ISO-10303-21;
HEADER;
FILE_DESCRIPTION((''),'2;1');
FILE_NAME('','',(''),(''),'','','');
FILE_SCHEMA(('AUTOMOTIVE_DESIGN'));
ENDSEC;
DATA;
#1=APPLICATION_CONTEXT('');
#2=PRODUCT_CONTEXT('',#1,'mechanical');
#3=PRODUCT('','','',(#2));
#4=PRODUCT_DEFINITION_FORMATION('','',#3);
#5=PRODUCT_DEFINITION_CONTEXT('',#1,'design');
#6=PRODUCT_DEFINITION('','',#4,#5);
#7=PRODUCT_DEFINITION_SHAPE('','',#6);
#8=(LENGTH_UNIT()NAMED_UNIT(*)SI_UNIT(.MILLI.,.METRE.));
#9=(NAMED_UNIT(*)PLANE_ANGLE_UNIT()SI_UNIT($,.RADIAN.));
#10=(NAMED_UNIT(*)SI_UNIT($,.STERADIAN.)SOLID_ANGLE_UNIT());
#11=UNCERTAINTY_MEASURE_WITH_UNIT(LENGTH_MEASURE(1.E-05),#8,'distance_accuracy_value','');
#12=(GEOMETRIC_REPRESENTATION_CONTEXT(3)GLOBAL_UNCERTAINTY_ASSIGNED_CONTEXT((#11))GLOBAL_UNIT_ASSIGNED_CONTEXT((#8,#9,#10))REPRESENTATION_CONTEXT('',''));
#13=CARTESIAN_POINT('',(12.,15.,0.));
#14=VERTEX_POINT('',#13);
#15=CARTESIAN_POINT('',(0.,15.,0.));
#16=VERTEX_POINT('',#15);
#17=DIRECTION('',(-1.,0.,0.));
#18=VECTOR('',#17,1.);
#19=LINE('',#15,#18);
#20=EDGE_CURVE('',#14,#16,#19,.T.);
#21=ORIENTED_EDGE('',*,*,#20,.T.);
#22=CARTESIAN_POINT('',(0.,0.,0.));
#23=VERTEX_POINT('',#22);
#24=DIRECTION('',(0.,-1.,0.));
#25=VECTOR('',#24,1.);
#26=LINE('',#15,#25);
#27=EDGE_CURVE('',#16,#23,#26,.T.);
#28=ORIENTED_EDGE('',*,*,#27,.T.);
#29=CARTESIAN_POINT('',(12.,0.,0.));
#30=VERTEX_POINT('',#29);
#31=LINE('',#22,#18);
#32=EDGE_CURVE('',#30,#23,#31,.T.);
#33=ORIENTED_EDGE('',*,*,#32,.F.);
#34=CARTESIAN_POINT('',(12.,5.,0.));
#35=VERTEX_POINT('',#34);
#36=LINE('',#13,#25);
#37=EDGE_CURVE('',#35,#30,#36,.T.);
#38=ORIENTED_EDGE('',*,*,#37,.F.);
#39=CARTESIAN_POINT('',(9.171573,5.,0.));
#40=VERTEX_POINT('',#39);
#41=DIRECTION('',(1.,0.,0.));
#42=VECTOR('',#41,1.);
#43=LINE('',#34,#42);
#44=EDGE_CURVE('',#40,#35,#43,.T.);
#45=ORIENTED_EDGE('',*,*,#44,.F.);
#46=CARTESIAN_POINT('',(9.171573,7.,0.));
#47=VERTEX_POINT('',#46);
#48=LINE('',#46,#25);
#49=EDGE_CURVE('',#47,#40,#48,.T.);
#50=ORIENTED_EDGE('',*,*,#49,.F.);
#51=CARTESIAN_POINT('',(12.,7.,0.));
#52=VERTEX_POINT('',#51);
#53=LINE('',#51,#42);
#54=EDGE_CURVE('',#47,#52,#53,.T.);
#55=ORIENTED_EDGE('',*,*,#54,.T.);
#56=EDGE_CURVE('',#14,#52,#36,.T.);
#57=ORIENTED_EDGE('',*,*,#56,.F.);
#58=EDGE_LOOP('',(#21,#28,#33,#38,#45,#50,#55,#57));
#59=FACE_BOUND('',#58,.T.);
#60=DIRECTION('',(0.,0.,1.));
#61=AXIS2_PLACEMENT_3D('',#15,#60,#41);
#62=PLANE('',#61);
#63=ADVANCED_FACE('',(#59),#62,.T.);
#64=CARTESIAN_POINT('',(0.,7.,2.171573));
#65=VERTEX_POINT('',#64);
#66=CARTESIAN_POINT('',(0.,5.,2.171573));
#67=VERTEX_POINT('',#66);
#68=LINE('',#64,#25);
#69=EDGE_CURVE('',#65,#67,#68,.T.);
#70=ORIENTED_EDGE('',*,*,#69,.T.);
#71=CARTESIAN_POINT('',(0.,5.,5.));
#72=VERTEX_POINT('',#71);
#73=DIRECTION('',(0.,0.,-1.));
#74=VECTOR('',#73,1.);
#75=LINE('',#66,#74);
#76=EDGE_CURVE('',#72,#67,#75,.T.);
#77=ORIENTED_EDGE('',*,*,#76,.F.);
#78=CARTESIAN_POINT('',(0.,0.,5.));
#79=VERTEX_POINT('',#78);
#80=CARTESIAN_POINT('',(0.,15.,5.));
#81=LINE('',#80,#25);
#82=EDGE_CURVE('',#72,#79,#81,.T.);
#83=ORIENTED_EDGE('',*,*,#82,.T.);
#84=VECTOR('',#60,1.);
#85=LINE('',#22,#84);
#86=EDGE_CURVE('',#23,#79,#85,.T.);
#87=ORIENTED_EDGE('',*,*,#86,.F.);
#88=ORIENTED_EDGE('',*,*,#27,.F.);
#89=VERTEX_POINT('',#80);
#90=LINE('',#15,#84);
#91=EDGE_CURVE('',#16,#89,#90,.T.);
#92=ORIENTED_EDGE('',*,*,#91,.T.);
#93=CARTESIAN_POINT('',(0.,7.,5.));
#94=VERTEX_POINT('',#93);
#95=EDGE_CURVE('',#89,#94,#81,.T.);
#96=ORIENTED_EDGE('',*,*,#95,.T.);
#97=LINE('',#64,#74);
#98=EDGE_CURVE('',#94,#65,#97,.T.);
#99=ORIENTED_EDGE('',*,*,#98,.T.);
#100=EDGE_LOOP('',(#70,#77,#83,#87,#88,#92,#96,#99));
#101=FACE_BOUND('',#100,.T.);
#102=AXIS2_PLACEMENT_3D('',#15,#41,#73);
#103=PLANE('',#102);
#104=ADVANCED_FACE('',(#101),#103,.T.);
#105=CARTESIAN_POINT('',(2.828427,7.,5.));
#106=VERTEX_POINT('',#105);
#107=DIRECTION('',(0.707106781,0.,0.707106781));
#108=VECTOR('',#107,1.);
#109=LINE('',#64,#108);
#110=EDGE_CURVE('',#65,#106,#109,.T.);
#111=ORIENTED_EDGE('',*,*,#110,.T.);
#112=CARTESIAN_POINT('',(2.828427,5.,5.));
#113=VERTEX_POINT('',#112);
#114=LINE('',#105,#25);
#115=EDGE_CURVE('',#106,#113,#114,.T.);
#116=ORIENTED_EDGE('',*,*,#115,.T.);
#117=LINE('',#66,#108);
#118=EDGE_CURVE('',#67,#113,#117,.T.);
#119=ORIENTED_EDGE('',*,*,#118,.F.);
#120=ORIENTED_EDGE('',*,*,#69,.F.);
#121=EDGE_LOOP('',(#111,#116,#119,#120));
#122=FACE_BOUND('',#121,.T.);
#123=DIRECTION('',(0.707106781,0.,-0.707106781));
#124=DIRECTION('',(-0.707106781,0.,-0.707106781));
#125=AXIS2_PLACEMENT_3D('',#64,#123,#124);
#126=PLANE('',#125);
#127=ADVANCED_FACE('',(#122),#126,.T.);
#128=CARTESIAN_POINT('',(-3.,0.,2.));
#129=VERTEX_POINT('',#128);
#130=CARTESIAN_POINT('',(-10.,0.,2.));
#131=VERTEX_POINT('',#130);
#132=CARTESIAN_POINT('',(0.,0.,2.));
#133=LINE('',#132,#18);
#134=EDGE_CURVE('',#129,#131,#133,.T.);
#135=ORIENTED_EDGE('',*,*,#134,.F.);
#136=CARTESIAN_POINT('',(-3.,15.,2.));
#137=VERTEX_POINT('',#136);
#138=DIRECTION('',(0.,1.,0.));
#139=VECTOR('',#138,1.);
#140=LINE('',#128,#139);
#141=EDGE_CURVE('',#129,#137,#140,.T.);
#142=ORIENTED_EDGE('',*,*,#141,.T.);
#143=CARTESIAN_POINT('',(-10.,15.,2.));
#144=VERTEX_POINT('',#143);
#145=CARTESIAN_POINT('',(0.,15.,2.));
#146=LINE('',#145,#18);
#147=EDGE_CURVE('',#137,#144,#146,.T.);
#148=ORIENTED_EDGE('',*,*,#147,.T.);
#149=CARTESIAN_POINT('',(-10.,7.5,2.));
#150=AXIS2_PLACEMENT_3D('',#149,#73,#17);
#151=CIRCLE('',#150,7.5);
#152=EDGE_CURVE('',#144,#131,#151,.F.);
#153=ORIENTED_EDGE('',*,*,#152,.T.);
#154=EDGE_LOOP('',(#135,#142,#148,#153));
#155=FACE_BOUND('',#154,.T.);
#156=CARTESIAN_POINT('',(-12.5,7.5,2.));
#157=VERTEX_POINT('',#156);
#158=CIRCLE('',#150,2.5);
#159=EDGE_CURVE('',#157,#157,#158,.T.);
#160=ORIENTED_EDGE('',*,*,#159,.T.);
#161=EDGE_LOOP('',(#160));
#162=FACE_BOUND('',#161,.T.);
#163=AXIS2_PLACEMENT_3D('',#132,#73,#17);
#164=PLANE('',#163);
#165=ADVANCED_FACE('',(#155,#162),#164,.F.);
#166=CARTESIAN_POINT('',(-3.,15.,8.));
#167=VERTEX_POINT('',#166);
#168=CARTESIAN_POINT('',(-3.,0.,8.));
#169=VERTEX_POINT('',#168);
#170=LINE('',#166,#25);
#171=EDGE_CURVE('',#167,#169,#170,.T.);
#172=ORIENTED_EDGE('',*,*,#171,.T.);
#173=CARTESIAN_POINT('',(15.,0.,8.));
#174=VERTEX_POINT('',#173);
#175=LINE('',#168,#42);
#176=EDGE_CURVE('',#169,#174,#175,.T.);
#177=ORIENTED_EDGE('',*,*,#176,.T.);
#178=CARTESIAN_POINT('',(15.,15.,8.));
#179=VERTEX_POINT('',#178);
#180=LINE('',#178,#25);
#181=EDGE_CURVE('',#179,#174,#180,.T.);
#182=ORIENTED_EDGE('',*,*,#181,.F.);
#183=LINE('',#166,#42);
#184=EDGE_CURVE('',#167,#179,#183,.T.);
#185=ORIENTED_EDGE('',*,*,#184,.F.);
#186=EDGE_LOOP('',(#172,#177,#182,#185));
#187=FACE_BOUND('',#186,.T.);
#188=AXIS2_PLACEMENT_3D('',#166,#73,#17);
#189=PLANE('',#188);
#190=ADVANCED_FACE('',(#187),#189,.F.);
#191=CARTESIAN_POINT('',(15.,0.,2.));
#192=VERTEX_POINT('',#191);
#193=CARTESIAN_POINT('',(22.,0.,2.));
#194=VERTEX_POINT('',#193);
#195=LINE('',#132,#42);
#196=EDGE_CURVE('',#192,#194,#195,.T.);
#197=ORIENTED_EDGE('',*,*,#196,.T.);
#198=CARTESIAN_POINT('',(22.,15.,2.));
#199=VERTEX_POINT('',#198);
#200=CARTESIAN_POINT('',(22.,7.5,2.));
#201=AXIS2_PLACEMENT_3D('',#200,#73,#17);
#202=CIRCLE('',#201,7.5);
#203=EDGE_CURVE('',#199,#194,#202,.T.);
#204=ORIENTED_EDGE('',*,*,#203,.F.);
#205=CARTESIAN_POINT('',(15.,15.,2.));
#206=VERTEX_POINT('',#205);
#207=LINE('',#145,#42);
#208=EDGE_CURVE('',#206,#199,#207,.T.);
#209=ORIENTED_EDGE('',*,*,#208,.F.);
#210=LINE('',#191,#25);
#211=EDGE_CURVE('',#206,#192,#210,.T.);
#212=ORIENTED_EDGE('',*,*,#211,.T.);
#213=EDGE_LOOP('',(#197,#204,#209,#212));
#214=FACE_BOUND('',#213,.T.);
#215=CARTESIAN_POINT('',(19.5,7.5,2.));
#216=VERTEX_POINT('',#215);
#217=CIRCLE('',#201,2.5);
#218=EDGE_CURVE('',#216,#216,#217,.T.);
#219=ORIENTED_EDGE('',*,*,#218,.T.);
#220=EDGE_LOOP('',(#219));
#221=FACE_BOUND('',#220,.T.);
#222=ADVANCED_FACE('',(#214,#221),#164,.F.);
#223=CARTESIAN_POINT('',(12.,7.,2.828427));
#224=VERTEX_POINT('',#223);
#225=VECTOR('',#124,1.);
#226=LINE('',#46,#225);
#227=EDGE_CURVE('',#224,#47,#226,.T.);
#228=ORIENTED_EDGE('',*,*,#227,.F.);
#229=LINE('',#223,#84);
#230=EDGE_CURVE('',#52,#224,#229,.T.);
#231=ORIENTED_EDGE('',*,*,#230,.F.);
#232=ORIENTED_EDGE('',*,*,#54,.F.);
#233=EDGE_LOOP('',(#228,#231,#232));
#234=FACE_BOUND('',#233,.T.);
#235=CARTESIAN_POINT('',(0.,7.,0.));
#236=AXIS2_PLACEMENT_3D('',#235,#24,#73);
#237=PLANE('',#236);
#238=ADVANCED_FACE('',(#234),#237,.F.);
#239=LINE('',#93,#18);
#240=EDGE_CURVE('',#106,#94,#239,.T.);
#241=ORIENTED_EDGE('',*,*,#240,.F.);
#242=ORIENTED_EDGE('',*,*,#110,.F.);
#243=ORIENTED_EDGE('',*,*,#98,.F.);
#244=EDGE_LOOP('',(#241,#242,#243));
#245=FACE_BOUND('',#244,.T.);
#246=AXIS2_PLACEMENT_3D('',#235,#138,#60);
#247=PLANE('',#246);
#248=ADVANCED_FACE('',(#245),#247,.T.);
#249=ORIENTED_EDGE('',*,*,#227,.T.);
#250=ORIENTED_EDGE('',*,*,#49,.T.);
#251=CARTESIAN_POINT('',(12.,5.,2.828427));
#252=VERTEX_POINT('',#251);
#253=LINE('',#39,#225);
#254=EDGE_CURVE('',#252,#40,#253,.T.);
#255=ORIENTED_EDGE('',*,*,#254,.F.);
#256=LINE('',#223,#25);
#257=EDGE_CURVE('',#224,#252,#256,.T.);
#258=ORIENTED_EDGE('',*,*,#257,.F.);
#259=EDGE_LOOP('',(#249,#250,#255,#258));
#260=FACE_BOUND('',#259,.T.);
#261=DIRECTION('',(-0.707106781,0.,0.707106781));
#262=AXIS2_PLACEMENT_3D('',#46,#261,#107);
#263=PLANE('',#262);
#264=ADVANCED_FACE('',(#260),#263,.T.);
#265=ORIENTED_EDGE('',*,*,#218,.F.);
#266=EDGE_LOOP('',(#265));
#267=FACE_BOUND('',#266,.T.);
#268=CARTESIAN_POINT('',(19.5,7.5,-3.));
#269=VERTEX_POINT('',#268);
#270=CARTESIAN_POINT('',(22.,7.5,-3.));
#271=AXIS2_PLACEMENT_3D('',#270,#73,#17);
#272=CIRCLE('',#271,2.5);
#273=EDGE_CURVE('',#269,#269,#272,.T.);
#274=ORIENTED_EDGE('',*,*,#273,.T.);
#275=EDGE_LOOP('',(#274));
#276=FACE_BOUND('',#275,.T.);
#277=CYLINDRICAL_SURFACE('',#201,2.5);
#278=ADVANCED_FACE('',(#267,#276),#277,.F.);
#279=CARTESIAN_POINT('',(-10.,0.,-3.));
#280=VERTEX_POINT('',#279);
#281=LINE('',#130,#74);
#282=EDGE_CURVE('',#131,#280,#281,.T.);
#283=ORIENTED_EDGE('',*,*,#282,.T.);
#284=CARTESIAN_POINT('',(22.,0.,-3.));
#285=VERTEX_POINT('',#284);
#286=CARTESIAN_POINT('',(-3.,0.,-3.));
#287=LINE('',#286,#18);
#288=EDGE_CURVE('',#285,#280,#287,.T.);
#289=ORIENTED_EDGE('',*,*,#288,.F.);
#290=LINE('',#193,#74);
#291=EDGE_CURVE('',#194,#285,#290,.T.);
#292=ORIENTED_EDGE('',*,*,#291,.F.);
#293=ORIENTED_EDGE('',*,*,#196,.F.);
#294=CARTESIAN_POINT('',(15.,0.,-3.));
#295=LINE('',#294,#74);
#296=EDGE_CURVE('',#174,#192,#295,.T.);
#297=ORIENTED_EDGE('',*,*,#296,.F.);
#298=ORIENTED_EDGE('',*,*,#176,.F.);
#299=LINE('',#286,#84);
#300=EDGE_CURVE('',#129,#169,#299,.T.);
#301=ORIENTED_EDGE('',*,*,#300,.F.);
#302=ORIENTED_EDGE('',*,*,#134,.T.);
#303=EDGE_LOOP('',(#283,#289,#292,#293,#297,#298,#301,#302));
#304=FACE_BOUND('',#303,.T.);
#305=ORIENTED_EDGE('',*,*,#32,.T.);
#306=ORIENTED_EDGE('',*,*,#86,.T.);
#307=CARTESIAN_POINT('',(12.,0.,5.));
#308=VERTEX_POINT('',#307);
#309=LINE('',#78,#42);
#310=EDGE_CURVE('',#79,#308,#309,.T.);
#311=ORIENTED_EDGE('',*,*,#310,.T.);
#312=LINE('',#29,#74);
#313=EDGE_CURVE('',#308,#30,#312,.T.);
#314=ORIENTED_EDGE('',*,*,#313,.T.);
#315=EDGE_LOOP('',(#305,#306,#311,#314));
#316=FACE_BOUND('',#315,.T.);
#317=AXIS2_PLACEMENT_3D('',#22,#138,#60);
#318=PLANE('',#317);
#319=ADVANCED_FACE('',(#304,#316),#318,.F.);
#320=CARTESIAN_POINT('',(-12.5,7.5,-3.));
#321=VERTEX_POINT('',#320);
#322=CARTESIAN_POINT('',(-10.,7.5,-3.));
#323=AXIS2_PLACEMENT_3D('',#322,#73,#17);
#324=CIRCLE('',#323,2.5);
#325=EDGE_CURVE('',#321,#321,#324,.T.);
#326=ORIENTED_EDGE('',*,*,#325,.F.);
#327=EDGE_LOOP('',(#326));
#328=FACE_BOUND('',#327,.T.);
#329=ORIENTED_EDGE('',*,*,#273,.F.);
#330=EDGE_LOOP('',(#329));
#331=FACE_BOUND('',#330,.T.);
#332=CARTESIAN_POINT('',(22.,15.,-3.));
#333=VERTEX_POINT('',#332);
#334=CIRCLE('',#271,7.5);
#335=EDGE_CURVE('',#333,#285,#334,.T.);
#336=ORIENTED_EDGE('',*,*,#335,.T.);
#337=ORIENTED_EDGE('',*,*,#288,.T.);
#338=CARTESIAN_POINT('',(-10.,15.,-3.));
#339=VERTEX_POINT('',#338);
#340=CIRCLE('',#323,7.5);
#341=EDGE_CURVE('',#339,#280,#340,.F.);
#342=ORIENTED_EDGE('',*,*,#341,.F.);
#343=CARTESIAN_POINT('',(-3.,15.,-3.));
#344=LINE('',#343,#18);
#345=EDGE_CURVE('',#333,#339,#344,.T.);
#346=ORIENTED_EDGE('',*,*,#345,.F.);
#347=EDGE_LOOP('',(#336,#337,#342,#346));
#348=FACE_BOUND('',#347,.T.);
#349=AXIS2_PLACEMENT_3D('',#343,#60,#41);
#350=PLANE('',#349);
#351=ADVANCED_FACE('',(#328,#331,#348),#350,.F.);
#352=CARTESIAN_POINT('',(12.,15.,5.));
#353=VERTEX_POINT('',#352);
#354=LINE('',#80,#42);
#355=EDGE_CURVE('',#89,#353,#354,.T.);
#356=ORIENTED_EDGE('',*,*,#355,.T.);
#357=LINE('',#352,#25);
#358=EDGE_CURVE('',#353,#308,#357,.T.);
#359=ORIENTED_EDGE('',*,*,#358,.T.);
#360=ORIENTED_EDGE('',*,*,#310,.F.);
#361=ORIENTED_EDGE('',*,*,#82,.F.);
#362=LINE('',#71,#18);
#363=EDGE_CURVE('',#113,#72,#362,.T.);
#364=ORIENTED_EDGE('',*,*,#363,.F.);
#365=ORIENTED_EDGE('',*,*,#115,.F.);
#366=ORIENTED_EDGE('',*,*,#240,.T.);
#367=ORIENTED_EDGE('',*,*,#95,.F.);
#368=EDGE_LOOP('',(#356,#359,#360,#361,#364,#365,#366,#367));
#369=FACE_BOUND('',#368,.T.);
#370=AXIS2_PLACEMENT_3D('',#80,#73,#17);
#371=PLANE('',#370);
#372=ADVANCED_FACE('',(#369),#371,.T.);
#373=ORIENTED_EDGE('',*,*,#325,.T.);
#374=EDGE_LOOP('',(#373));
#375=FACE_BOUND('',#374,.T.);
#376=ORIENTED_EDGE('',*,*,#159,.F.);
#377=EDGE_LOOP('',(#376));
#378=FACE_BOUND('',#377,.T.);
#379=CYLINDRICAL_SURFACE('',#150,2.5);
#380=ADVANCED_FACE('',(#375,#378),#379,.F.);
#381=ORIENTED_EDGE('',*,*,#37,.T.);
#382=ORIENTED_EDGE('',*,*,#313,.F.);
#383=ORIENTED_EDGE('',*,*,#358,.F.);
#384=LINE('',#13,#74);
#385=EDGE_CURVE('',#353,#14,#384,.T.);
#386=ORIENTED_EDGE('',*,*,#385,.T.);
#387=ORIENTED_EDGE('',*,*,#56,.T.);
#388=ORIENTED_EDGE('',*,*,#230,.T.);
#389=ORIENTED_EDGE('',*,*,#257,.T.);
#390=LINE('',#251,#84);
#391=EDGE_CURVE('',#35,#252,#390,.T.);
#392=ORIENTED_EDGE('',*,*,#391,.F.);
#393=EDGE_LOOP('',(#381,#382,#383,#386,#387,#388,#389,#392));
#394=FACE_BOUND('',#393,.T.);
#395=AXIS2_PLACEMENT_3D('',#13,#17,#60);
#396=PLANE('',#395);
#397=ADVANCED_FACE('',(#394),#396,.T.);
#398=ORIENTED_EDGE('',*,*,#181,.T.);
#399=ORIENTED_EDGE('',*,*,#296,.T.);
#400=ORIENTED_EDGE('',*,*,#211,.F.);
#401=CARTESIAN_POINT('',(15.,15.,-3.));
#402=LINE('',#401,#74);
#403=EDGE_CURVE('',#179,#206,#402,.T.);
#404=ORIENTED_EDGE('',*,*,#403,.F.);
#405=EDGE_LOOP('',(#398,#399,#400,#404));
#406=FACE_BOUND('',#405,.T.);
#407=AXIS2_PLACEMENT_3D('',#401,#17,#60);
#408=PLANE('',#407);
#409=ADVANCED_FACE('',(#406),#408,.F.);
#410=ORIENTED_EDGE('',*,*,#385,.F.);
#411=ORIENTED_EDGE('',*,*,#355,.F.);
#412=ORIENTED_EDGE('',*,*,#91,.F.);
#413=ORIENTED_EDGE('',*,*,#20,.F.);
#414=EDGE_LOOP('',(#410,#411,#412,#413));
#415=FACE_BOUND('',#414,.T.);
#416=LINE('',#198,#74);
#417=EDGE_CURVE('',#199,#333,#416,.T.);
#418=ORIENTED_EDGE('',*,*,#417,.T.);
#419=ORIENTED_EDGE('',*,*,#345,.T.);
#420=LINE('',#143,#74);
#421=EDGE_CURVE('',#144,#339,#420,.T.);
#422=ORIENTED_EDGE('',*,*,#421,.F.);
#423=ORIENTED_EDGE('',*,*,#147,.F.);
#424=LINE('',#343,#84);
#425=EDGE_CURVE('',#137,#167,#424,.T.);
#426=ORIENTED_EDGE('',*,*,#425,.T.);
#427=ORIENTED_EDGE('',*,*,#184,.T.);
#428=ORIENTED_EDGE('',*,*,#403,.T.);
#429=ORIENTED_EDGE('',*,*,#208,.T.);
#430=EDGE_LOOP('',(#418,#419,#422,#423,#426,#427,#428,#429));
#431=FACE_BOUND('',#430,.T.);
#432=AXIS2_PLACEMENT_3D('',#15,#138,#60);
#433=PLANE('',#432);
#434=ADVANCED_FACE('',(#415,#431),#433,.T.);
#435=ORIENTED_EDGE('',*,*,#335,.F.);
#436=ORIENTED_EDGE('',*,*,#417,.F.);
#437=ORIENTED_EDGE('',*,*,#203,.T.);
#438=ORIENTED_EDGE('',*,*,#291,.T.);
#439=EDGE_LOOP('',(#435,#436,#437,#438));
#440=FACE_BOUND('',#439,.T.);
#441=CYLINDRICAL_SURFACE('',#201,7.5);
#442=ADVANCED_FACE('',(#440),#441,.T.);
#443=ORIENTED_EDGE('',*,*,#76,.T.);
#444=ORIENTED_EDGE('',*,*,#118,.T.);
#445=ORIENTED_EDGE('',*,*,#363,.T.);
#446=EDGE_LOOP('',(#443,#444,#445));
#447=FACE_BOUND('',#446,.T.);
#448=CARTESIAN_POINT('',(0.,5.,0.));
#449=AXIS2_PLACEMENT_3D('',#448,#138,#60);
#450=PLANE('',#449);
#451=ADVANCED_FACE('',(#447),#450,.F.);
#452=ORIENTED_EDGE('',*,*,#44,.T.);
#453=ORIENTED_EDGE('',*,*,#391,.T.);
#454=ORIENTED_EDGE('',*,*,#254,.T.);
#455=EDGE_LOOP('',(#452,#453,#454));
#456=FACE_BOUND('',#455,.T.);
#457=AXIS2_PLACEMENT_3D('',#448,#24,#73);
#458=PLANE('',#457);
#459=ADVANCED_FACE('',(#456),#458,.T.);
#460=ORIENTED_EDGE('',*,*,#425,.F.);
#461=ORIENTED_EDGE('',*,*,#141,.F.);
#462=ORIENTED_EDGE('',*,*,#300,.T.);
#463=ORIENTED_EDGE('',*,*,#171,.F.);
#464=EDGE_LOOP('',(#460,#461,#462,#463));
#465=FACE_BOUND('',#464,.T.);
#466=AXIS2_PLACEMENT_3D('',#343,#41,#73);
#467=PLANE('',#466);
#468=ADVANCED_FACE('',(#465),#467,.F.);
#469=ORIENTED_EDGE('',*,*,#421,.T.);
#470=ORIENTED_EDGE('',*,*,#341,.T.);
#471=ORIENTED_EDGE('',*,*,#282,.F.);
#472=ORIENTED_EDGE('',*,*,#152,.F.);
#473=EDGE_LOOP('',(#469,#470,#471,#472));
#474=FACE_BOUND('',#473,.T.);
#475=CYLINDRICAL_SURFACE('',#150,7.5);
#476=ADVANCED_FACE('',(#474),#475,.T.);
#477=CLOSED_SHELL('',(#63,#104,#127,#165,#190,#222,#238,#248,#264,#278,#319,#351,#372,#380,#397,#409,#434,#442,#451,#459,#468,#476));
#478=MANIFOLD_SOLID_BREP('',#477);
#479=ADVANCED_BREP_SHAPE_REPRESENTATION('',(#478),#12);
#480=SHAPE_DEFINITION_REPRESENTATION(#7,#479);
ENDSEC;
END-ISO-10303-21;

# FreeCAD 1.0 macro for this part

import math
import FreeCAD as App
import Part
import Sketcher

V = App.Vector


def add_polygon(sketch, points):
    """Adds a closed chain of lines whose ends are joined by coincident constraints."""
    first, n = sketch.GeometryCount, len(points)
    for a, b in zip(points, points[1:] + points[:1]):
        sketch.addGeometry(Part.LineSegment(App.Vector(*a, 0), App.Vector(*b, 0)), False)
    for i in range(n):
        sketch.addConstraint(Sketcher.Constraint("Coincident", first + i, 2, first + (i + 1) % n, 1))

doc = App.newDocument("Part")
body = doc.addObject("PartDesign::Body", "Body")

# Sketch on XZ plane
sketch1 = body.newObject("Sketcher::SketchObject", "Sketch")
sketch1.AttachmentSupport = (doc.getObject("XZ_Plane"), [""])
sketch1.MapMode = "FlatFace"
add_polygon(sketch1, [(-3, -3), (-3, 8), (15, 8), (15, -3)])  # lines 0-3
add_polygon(sketch1, [(12, 5), (0, 5), (0, 0), (12, 0)])  # lines 4-7
sketch1.addConstraint([
    Sketcher.Constraint("Vertical", 0),
    Sketcher.Constraint("Horizontal", 1),
    Sketcher.Constraint("Vertical", 2),
    Sketcher.Constraint("Horizontal", 3),
    Sketcher.Constraint("Horizontal", 4),
    Sketcher.Constraint("Vertical", 5),
    Sketcher.Constraint("Horizontal", 6),
    Sketcher.Constraint("Vertical", 7),
    Sketcher.Constraint("Coincident", 5, 2, -1, 1),
    Sketcher.Constraint("DistanceX", 1, 1, 1, 2, 18.0),
    Sketcher.Constraint("DistanceX", 4, 2, 4, 1, 12.0),
    Sketcher.Constraint("DistanceY", 0, 1, 0, 2, 11.0),
    Sketcher.Constraint("DistanceY", 5, 2, 5, 1, 5.0),
    Sketcher.Constraint("DistanceX", 0, 2, -1, 1, 3.0),
    Sketcher.Constraint("DistanceY", -1, 1, 0, 2, 8.0),
])
pad1 = body.newObject("PartDesign::Pad", "Pad")
pad1.Profile = sketch1
pad1.Length = 15
pad1.Reversed = True

# Sketch on XY plane
sketch2 = body.newObject("Sketcher::SketchObject", "Sketch001")
sketch2.AttachmentSupport = (doc.getObject("XY_Plane"), [""])
sketch2.MapMode = "FlatFace"
sketch2.AttachmentOffset = App.Placement(V(0, 0, -3), App.Rotation())
sketch2.addGeometry([
    Part.ArcOfCircle(Part.Circle(V(-10, 7.5, 0), V(0, 0, 1), 7.5), math.radians(90), math.radians(270)),  # 0
    Part.LineSegment(V(-10, 15, 0), V(-3, 15, 0)),  # 1
    Part.LineSegment(V(-3, 15, 0), V(-3, 0, 0)),  # 2
    Part.LineSegment(V(-3, 0, 0), V(-10, 0, 0)),  # 3
    Part.Circle(V(-10, 7.5, 0), V(0, 0, 1), 2.5),  # 4
    Part.LineSegment(V(15, 15, 0), V(22, 15, 0)),  # 5
    Part.ArcOfCircle(Part.Circle(V(22, 7.5, 0), V(0, 0, 1), 7.5), math.radians(-90), math.radians(90)),  # 6
    Part.LineSegment(V(22, 0, 0), V(15, 0, 0)),  # 7
    Part.LineSegment(V(15, 0, 0), V(15, 15, 0)),  # 8
    Part.Circle(V(22, 7.5, 0), V(0, 0, 1), 2.5),  # 9
], False)
sketch2.addConstraint([
    Sketcher.Constraint("Tangent", 0, 1, 1, 1),
    Sketcher.Constraint("Coincident", 1, 2, 2, 1),
    Sketcher.Constraint("Coincident", 2, 2, 3, 1),
    Sketcher.Constraint("Tangent", 3, 2, 0, 2),
    Sketcher.Constraint("Tangent", 5, 2, 6, 2),
    Sketcher.Constraint("Tangent", 6, 1, 7, 1),
    Sketcher.Constraint("Coincident", 7, 2, 8, 1),
    Sketcher.Constraint("Coincident", 8, 2, 5, 1),
    Sketcher.Constraint("Horizontal", 1),
    Sketcher.Constraint("Vertical", 2),
    Sketcher.Constraint("Horizontal", 3),
    Sketcher.Constraint("Horizontal", 5),
    Sketcher.Constraint("Horizontal", 7),
    Sketcher.Constraint("Vertical", 8),
    Sketcher.Constraint("Coincident", 4, 3, 0, 3),
    Sketcher.Constraint("Coincident", 9, 3, 6, 3),
    Sketcher.Constraint("Equal", 0, 6),
    Sketcher.Constraint("Equal", 4, 9),
    Sketcher.Constraint("PointOnObject", 2, 2, -1),
    Sketcher.Constraint("PointOnObject", 6, 1, -1),
    Sketcher.Constraint("Equal", 3, 5),
    Sketcher.Constraint("Diameter", 4, 5.0),
    Sketcher.Constraint("Radius", 0, 7.5),
    Sketcher.Constraint("DistanceX", 1, 1, 1, 2, 7.0),
    Sketcher.Constraint("DistanceX", 0, 3, -1, 1, 10.0),
    Sketcher.Constraint("DistanceX", -1, 1, 6, 3, 22.0),
])
pad2 = body.newObject("PartDesign::Pad", "Pad001")
pad2.Profile = sketch2
pad2.Length = 5

# Sketch on XZ plane
sketch3 = body.newObject("Sketcher::SketchObject", "Sketch002")
sketch3.AttachmentSupport = (doc.getObject("XZ_Plane"), [""])
sketch3.MapMode = "FlatFace"
sketch3.AttachmentOffset = App.Placement(V(0, 0, -5), App.Rotation())
add_polygon(sketch3, [(12, 0), (12, 2.8), (9.2, 0)])  # lines 0-2
add_polygon(sketch3, [(0, 5), (0, 2.2), (2.8, 5)])  # lines 3-5
sketch3.addConstraint([
    Sketcher.Constraint("Vertical", 0),
    Sketcher.Constraint("Horizontal", 2),
    Sketcher.Constraint("Vertical", 3),
    Sketcher.Constraint("Horizontal", 5),
    Sketcher.Constraint("PointOnObject", 1, 2, -1),
    Sketcher.Constraint("PointOnObject", 3, 2, -2),
    Sketcher.Constraint("Parallel", 1, 4),
    Sketcher.Constraint("Equal", 2, 5),
    Sketcher.Constraint("Equal", 5, 0),
    Sketcher.Constraint("Distance", 1, 4.0),
    Sketcher.Constraint("DistanceX", -1, 1, 0, 2, 12.0),
    Sketcher.Constraint("DistanceY", -1, 1, 4, 2, 5.0),
])
pad3 = body.newObject("PartDesign::Pad", "Pad002")
pad3.Profile = sketch3
pad3.Length = 2
pad3.Reversed = True

doc.recompute()
